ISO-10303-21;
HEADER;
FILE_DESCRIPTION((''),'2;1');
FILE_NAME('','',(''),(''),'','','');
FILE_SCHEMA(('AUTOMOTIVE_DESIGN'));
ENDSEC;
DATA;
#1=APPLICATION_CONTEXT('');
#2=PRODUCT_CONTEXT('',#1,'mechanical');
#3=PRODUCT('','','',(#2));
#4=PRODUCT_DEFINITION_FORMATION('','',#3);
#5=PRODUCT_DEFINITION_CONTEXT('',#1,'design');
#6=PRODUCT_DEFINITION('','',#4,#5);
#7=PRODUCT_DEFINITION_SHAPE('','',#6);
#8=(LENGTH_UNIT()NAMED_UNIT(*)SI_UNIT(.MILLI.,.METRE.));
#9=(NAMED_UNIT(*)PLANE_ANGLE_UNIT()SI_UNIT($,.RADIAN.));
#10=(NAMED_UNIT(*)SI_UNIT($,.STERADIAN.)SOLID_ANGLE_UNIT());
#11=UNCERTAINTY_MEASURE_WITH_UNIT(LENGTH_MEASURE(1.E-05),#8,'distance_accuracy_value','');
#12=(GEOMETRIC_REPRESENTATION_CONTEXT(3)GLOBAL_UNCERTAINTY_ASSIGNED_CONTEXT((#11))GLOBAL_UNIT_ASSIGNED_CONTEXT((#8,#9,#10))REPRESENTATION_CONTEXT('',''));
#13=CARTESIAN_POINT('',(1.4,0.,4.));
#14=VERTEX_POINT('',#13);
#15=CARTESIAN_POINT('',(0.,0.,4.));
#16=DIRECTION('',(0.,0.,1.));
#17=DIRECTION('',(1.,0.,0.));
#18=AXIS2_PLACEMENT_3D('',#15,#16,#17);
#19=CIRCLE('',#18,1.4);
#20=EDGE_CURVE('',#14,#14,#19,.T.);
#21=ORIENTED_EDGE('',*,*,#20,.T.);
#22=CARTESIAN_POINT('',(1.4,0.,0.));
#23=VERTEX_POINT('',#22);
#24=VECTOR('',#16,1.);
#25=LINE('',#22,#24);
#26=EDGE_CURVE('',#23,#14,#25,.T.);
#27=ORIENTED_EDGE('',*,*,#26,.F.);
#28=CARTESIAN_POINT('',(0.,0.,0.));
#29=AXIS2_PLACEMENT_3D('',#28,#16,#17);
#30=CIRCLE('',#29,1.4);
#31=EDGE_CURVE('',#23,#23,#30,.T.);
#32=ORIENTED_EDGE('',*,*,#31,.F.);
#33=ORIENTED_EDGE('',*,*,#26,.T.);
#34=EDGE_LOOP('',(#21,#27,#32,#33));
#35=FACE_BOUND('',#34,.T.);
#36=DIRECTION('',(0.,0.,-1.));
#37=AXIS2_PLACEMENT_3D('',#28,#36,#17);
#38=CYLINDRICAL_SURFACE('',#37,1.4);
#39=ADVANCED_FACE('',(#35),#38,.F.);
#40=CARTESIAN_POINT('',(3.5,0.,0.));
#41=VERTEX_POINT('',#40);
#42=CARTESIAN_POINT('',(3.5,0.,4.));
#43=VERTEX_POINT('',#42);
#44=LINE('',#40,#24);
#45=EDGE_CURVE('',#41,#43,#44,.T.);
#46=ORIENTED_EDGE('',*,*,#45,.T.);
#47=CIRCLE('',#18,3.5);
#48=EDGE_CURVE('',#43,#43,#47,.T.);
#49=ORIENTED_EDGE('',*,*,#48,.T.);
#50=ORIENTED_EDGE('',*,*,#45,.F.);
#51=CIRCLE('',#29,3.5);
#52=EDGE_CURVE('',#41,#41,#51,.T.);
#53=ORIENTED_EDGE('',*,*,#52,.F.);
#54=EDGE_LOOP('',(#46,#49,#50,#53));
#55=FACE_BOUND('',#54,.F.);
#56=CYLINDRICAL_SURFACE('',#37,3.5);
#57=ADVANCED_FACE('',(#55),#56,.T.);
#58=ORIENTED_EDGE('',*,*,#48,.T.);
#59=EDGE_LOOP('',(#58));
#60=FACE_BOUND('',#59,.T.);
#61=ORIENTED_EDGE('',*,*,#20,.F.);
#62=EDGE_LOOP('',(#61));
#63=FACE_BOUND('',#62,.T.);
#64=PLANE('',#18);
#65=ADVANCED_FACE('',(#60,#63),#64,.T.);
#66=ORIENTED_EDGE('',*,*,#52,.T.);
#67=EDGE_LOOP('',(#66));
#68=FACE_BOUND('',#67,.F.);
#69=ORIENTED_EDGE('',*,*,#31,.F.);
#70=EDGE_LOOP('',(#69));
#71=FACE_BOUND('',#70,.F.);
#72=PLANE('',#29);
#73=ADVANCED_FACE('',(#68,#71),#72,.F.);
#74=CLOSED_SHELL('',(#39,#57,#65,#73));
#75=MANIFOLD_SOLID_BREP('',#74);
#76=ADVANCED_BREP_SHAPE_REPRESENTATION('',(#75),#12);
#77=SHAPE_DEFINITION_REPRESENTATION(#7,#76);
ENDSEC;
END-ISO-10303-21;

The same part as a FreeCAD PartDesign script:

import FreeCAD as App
import Part
import Sketcher
from FreeCAD import Vector

doc = App.newDocument("Part")
params = doc.addObject("Spreadsheet::Sheet", "Params")
for row, (alias, value) in enumerate([
    ("sketch1_diameter", "2.8 mm"),
    ("pad1_length", "4 mm"),
    ("sketch2_diameter", "7 mm"),
    ("pad2_length", "4 mm"),
], start=1):
    params.set(f"A{row}", alias)
    params.set(f"B{row}", "=" + value)
    params.setAlias(f"B{row}", alias)

body = doc.addObject("PartDesign::Body", "Body")

# Sketch on XY plane
sketch1 = body.newObject("Sketcher::SketchObject", "Sketch")
sketch1.AttachmentSupport = (doc.getObject("XY_Plane"), [""])
sketch1.MapMode = "FlatFace"
sketch1.addGeometry(Part.Circle(Vector(0, 0, 0), Vector(0, 0, 1), 1.4), False)
sketch1.addConstraint([
    Sketcher.Constraint("Coincident", 0, 3, -1, 1),
    Sketcher.Constraint("Diameter", 0, 2.8),
])
sketch1.setExpression("Constraints[1]", "Params.sketch1_diameter")
pad1 = body.newObject("PartDesign::Pad", "Pad")
pad1.Profile = sketch1
pad1.setExpression("Length", "Params.pad1_length")
body2 = doc.addObject("PartDesign::Body", "Body001")

# Sketch on XY plane
sketch2 = body2.newObject("Sketcher::SketchObject", "Sketch001")
sketch2.AttachmentSupport = (doc.getObject("XY_Plane001"), [""])
sketch2.MapMode = "FlatFace"
sketch2.addGeometry(Part.Circle(Vector(0, 0, 0), Vector(0, 0, 1), 3.5), False)
sketch2.addConstraint([
    Sketcher.Constraint("Coincident", 0, 3, -1, 1),
    Sketcher.Constraint("Diameter", 0, 7.0),
])
sketch2.setExpression("Constraints[1]", "Params.sketch2_diameter")
pad2 = body2.newObject("PartDesign::Pad", "Pad001")
pad2.Profile = sketch2
pad2.setExpression("Length", "Params.pad2_length")
doc.recompute()

boolean = body2.newObject("PartDesign::Boolean", "Boolean")
boolean.Type = "Cut"
boolean.addObjects([body])

doc.recompute()
